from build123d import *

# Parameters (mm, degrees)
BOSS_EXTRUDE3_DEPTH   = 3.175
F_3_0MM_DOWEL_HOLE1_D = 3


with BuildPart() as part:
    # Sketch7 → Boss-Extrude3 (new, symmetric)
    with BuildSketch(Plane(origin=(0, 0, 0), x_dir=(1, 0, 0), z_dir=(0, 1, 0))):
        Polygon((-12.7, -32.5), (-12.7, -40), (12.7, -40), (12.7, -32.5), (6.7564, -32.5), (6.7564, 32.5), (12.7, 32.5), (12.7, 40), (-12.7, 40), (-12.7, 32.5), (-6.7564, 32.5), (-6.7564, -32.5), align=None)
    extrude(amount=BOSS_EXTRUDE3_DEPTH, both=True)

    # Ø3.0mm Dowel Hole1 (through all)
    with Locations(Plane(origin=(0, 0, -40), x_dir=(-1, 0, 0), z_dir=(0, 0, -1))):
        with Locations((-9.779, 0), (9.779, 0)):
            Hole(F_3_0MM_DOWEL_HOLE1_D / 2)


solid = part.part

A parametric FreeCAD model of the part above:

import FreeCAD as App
import Part
import Sketcher
from FreeCAD import Vector
Q = App.Units.Quantity


def add_polygon(sketch, points):
    """Adds a closed chain of lines whose ends are joined by coincident constraints."""
    first, n = sketch.GeometryCount, len(points)
    for a, b in zip(points, points[1:] + points[:1]):
        sketch.addGeometry(Part.LineSegment(App.Vector(*a, 0), App.Vector(*b, 0)), False)
    for i in range(n):
        sketch.addConstraint(Sketcher.Constraint("Coincident", first + i, 2, first + (i + 1) % n, 1))

doc = App.newDocument("Part")
body = doc.addObject("PartDesign::Body", "Body")

sketch1 = body.newObject("Sketcher::SketchObject", "Sketch")
sketch1.AttachmentSupport = (doc.getObject("XZ_Plane"), [""])
sketch1.MapMode = "FlatFace"
add_polygon(sketch1, [(-13, 32), (-13, 40), (13, 40), (13, 32), (7, 32), (7, -32), (13, -32), (13, -40), (-13, -40), (-13, -32), (-7, -32), (-7, 32)])
sketch1.addConstraint([
    Sketcher.Constraint("Vertical", 0),
    Sketcher.Constraint("Horizontal", 1),
    Sketcher.Constraint("Vertical", 2),
    Sketcher.Constraint("Horizontal", 3),
    Sketcher.Constraint("Vertical", 4),
    Sketcher.Constraint("Horizontal", 5),
    Sketcher.Constraint("Vertical", 6),
    Sketcher.Constraint("Horizontal", 7),
    Sketcher.Constraint("Vertical", 8),
    Sketcher.Constraint("Horizontal", 9),
    Sketcher.Constraint("Vertical", 10),
    Sketcher.Constraint("Horizontal", 11),
    Sketcher.Constraint("Symmetric", 0, 2, 6, 2, -1, 1),
    Sketcher.Constraint("Symmetric", 2, 2, 8, 2, -1, 1),
    Sketcher.Constraint("Symmetric", 4, 2, 10, 2, -1, 1),
    Sketcher.Constraint("Symmetric", 5, 2, 8, 2, -2),
    Sketcher.Constraint("DistanceY", 4, 2, 4, 1, Q("65 mm")),
    Sketcher.Constraint("DistanceX", 1, 1, 1, 2, Q("25.4 mm")),
    Sketcher.Constraint("DistanceY", 0, 1, 0, 2, Q("7.5 mm")),
    Sketcher.Constraint("DistanceX", 3, 2, 3, 1, Q("5.9436 mm")),
])
pad1 = body.newObject("PartDesign::Pad", "Pad")
pad1.Profile = sketch1
pad1.Length = 6.35
pad1.Midplane = True

sketch2 = body.newObject("Sketcher::SketchObject", "Sketch001")
sketch2.AttachmentSupport = (doc.getObject("XY_Plane"), [""])
sketch2.MapMode = "FlatFace"
sketch2.AttachmentOffset = App.Placement(Vector(0, 0, -40), App.Rotation())
sketch2.addGeometry([
    Part.Circle(Vector(9.8, 0, 0), Vector(0, 0, 1), 1.5),
    Part.Circle(Vector(-9.8, 0, 0), Vector(0, 0, 1), 1.5),
], False)
sketch2.addConstraint([
    Sketcher.Constraint("Equal", 0, 1),
    Sketcher.Constraint("Symmetric", 0, 3, 1, 3, -1, 1),
    Sketcher.Constraint("PointOnObject", 0, 3, -1),
    Sketcher.Constraint("Diameter", 0, Q("3 mm")),
    Sketcher.Constraint("DistanceX", -1, 1, 0, 3, Q("9.779 mm")),
])
doc.recompute()
hole = body.newObject("PartDesign::Hole", "Hole")
hole.Profile = sketch2
hole.ThreadType = "None"
hole.Diameter = 3
hole.DepthType = "ThroughAll"
hole.Reversed = True

doc.recompute()
